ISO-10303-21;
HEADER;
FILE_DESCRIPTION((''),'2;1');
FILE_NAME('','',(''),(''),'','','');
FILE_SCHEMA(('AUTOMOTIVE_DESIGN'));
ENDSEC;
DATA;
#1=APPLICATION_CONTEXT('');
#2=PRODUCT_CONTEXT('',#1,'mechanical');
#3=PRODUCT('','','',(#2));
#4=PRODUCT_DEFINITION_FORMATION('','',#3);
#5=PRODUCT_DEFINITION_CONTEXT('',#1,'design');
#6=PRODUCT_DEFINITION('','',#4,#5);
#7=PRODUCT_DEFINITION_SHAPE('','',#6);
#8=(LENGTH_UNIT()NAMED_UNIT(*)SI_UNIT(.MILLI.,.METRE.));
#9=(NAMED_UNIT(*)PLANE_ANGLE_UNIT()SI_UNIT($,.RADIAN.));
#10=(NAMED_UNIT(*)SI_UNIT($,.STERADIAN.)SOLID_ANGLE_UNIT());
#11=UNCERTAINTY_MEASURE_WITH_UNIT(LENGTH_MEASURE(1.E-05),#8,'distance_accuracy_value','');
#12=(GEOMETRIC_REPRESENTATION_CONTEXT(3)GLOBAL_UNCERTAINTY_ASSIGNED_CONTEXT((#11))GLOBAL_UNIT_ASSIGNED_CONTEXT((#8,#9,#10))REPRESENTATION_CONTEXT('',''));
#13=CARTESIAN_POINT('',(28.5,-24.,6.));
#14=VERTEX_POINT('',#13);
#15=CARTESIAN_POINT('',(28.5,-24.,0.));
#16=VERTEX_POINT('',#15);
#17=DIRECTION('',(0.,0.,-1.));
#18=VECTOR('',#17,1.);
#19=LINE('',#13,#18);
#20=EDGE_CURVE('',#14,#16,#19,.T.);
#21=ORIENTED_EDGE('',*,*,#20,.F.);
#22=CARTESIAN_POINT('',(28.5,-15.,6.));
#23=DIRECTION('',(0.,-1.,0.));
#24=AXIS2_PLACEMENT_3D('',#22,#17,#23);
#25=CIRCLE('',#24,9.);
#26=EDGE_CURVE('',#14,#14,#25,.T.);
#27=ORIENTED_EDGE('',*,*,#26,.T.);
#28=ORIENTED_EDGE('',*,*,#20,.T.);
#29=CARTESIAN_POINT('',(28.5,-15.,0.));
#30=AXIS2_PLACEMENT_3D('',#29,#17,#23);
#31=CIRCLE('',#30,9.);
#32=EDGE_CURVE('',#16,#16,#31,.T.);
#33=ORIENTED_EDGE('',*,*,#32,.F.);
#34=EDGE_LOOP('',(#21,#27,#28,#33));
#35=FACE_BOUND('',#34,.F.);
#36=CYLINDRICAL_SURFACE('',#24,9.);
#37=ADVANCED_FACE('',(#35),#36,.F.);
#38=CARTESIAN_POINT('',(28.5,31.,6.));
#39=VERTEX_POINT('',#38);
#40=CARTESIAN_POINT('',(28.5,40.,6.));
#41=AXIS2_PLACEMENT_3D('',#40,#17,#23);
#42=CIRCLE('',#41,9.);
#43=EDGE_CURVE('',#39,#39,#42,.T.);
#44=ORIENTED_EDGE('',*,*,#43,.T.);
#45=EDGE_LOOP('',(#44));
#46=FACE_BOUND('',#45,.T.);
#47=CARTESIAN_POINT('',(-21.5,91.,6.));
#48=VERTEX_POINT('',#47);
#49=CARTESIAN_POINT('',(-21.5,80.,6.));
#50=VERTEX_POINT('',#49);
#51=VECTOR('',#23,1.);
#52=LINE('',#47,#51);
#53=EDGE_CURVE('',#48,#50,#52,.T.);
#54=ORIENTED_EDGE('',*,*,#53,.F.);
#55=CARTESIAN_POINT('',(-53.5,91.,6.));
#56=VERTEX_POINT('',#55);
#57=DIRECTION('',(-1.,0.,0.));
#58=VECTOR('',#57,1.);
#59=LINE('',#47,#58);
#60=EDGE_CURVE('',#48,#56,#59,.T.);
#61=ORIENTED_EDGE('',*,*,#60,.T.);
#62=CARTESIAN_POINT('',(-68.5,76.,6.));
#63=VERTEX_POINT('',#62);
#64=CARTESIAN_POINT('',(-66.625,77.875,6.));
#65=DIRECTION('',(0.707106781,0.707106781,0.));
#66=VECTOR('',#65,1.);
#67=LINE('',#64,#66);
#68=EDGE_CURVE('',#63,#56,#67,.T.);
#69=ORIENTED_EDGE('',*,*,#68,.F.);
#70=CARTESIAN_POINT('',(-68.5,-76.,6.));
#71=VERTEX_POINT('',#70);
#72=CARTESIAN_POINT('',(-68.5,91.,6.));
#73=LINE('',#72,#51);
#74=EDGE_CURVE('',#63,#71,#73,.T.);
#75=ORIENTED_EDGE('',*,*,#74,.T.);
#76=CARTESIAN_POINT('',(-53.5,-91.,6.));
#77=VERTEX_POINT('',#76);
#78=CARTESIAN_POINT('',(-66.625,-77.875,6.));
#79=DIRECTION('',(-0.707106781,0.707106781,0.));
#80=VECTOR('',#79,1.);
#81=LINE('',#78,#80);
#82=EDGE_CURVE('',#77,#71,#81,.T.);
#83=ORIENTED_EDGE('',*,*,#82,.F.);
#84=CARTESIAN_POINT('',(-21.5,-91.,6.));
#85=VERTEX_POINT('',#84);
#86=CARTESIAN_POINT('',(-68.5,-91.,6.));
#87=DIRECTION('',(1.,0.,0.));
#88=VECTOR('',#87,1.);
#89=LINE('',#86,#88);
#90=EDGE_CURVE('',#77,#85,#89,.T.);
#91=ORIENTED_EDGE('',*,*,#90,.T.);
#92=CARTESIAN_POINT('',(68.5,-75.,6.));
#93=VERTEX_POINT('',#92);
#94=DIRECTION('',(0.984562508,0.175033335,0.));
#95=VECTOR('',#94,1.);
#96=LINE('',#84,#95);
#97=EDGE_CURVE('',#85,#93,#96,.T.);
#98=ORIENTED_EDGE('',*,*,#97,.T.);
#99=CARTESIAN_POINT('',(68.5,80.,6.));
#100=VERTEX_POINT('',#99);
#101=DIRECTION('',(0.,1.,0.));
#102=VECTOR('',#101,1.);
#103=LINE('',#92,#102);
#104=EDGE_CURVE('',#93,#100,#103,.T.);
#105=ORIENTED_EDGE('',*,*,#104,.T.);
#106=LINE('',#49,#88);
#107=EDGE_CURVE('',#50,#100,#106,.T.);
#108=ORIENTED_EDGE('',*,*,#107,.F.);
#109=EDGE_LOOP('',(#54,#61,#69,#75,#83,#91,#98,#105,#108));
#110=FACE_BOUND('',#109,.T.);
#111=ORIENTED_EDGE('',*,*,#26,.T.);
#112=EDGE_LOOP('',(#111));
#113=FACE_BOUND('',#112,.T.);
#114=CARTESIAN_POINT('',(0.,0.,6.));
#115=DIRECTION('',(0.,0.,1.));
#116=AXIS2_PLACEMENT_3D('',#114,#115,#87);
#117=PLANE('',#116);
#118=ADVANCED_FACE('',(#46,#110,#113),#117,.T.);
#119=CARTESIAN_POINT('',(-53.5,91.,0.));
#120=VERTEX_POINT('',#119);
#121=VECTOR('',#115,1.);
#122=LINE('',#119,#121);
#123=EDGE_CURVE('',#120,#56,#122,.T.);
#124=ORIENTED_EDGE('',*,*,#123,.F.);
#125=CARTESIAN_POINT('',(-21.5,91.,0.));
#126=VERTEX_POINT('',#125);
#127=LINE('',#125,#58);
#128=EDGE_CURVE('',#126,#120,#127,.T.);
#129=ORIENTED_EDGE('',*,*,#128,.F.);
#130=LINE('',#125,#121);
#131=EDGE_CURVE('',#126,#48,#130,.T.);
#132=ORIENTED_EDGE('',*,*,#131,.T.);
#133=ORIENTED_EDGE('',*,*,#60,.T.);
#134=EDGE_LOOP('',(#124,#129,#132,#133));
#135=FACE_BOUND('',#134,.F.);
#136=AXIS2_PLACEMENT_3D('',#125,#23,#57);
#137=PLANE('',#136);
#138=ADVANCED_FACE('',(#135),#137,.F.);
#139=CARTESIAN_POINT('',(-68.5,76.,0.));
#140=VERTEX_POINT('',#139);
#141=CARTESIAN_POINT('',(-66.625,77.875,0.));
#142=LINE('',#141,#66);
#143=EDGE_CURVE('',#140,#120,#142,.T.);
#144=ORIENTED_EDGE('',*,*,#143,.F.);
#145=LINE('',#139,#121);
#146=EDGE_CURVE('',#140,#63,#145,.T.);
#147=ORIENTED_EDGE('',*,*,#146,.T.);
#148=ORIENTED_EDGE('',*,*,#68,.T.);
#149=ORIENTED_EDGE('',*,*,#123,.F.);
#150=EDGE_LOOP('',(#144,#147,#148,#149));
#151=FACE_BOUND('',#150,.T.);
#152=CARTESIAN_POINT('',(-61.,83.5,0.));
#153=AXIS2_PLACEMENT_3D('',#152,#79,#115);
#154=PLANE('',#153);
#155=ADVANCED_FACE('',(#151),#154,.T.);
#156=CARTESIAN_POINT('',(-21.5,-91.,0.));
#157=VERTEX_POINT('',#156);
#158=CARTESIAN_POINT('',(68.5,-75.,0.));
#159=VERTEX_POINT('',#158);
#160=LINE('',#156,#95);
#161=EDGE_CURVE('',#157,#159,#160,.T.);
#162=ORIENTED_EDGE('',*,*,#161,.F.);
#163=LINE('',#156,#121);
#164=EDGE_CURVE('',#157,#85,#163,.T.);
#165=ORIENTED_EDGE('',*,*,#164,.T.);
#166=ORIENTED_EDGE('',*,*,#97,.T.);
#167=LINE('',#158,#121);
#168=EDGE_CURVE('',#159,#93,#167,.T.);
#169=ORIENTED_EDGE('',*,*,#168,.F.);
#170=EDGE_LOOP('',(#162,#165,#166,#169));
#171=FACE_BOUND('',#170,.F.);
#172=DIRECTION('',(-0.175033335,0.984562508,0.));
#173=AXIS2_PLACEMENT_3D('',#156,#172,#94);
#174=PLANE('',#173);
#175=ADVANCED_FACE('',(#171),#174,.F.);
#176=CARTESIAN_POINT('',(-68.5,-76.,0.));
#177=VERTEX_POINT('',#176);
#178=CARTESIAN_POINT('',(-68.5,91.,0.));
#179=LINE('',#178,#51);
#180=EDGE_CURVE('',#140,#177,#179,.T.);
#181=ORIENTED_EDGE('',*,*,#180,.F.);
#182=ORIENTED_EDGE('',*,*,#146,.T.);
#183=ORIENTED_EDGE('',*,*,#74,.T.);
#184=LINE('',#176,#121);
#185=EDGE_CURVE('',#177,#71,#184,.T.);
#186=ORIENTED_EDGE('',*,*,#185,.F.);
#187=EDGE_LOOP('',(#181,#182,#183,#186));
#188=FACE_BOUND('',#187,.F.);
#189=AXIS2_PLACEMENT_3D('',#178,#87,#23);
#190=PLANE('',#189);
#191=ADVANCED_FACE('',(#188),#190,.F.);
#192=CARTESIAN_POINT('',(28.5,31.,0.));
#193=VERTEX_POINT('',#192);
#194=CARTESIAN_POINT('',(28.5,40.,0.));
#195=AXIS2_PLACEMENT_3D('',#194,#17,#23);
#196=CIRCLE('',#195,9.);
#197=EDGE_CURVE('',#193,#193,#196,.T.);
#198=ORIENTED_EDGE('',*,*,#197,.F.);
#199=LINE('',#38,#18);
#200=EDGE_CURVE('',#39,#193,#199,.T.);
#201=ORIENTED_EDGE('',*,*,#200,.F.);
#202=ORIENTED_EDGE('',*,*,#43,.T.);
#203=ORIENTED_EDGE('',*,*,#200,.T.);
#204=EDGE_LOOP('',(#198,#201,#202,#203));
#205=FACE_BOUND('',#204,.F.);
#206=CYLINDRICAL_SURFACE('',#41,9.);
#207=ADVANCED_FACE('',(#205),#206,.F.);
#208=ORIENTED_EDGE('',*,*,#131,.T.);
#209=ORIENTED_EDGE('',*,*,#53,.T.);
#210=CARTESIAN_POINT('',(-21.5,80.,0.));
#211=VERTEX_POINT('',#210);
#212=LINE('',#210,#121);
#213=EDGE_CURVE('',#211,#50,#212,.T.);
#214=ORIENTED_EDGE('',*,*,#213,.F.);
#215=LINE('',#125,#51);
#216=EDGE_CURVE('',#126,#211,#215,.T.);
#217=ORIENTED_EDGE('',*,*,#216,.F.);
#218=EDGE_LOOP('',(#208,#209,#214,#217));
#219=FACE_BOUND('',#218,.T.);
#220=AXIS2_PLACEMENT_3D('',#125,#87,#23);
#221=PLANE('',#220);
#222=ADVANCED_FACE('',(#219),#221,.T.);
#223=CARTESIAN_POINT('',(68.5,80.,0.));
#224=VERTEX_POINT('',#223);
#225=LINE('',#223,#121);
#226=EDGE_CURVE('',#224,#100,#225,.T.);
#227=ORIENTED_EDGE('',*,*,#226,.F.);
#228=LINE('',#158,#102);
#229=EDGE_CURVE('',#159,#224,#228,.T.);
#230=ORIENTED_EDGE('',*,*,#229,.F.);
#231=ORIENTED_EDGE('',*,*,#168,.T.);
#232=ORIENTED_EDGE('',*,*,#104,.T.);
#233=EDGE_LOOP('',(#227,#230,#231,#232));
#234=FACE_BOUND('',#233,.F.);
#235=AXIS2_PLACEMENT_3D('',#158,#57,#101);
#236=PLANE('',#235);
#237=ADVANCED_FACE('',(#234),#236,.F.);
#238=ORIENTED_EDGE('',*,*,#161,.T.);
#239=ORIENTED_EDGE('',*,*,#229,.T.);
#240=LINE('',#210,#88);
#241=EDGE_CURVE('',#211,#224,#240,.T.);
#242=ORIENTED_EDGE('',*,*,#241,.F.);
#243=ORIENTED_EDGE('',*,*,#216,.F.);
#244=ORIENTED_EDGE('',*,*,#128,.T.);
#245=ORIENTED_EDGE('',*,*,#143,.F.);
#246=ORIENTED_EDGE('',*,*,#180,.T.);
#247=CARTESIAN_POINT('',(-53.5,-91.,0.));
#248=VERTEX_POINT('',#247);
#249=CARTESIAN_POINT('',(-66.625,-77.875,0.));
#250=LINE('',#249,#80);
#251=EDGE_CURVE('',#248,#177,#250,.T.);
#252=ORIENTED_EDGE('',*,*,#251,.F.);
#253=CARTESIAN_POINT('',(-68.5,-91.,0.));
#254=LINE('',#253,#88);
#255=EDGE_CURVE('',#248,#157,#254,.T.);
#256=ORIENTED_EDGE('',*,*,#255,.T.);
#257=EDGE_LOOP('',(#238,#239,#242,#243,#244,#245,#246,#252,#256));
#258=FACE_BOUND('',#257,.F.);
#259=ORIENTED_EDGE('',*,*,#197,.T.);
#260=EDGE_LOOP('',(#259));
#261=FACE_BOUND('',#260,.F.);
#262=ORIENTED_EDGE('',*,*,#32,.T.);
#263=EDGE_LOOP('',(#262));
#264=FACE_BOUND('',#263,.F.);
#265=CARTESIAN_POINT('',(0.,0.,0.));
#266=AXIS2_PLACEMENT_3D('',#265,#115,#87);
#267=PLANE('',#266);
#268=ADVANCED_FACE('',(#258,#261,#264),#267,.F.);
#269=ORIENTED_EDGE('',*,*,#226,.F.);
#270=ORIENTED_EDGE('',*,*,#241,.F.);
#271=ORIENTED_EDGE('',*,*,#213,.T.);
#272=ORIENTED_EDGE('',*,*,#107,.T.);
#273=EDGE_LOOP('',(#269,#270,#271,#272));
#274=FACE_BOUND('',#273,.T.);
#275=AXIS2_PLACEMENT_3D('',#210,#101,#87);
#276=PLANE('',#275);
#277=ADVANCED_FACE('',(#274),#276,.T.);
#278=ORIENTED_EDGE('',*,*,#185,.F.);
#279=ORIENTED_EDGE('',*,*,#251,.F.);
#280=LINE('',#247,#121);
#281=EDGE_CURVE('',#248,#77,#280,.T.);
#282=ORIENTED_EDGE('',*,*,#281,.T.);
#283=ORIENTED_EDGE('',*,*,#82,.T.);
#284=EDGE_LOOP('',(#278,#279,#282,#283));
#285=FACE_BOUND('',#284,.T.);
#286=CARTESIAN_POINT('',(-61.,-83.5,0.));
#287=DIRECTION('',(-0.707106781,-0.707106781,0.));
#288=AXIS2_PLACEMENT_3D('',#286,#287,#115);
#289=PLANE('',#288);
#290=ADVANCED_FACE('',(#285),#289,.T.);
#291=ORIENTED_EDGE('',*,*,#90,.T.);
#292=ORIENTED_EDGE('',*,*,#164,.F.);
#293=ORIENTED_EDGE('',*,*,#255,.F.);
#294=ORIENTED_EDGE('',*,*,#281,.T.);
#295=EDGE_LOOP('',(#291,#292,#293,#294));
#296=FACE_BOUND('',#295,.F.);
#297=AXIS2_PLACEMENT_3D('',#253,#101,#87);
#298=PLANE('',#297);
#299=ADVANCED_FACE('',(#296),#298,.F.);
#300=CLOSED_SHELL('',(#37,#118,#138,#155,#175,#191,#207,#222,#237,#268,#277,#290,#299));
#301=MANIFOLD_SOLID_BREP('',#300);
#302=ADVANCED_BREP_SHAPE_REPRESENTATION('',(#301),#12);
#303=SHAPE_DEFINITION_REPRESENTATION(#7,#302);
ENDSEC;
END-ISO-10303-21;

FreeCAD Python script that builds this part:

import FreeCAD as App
import Part
import Sketcher

V = App.Vector


def edges_at(feature, points):
    """Names of the edges that pass closest to the given points."""
    edges = feature.Shape.Edges
    near = lambda p: min(range(len(edges)), key=lambda i: edges[i].distToShape(Part.Vertex(*p))[0])
    return sorted({f"Edge{near(p) + 1}" for p in points})

doc = App.newDocument("Part")
body = doc.addObject("PartDesign::Body", "Body")

# Sketch on XY plane
sketch1 = doc.addObject("Sketcher::SketchObject", "Sketch")
body.addObject(sketch1)
sketch1.AttachmentSupport = (doc.XY_Plane, [""])
sketch1.MapMode = "FlatFace"
sketch1.addGeometry([
    Part.LineSegment(V(-21.5, 80, 0), V(-21.5, 91, 0)),  # 0
    Part.LineSegment(V(-21.5, 91, 0), V(-68.5, 91, 0)),  # 1
    Part.LineSegment(V(-68.5, 91, 0), V(-68.5, -91, 0)),  # 2
    Part.LineSegment(V(-68.5, -91, 0), V(-21.5, -91, 0)),  # 3
    Part.LineSegment(V(-21.5, -91, 0), V(68.5, -75, 0)),  # 4
    Part.LineSegment(V(68.5, -75, 0), V(68.5, 80, 0)),  # 5
    Part.LineSegment(V(68.5, 80, 0), V(-21.5, 80, 0)),  # 6
], False)
sketch1.addConstraint([
    Sketcher.Constraint("Coincident", 0, 2, 1, 1),
    Sketcher.Constraint("Coincident", 1, 2, 2, 1),
    Sketcher.Constraint("Coincident", 2, 2, 3, 1),
    Sketcher.Constraint("Coincident", 3, 2, 4, 1),
    Sketcher.Constraint("Coincident", 4, 2, 5, 1),
    Sketcher.Constraint("Coincident", 5, 2, 6, 1),
    Sketcher.Constraint("Coincident", 6, 2, 0, 1),
    Sketcher.Constraint("Vertical", 0),
    Sketcher.Constraint("Horizontal", 1),
    Sketcher.Constraint("Vertical", 2),
    Sketcher.Constraint("Horizontal", 3),
    Sketcher.Constraint("Vertical", 5),
    Sketcher.Constraint("Horizontal", 6),
    Sketcher.Constraint("Symmetric", 0, 2, 3, 2, -1),
    Sketcher.Constraint("DistanceX", 1, 2, 1, 1, 47.0),
    Sketcher.Constraint("DistanceY", 2, 2, 2, 1, 182.0),
    Sketcher.Constraint("DistanceX", 6, 2, 6, 1, 90.0),
    Sketcher.Constraint("DistanceY", 0, 1, 0, 2, 11.0),
    Sketcher.Constraint("DistanceY", 5, 1, 5, 2, 155.0),
    Sketcher.Constraint("DistanceX", 0, 2, -1, 1, 21.5),
])
pad1 = doc.addObject("PartDesign::Pad", "Pad")
body.addObject(pad1)
pad1.Profile = sketch1
pad1.Length = 6
doc.recompute()

chamfer = doc.addObject("PartDesign::Chamfer", "Chamfer")
body.addObject(chamfer)
chamfer.Base = (pad1, edges_at(pad1, [(-68.5, -91, 3), (-68.5, 91, 3)]))
chamfer.Size = 15

# Sketch on XY plane
sketch2 = doc.addObject("Sketcher::SketchObject", "Sketch001")
body.addObject(sketch2)
sketch2.AttachmentSupport = (doc.XY_Plane, [""])
sketch2.MapMode = "FlatFace"
sketch2.AttachmentOffset = App.Placement(V(0, 0, 6), App.Rotation())
sketch2.addGeometry([
    Part.Circle(V(28.5, 40, 0), V(0, 0, 1), 9),
    Part.Circle(V(28.5, -15, 0), V(0, 0, 1), 9),
], False)
sketch2.addConstraint([
    Sketcher.Constraint("Equal", 0, 1),
    Sketcher.Constraint("Vertical", 0, 3, 1, 3),
    Sketcher.Constraint("Diameter", 0, 18.0),
    Sketcher.Constraint("DistanceY", -1, 1, 0, 3, 40.0),
    Sketcher.Constraint("DistanceY", 1, 3, -1, 1, 15.0),
    Sketcher.Constraint("DistanceX", -1, 1, 0, 3, 28.5),
])
doc.recompute()
hole = doc.addObject("PartDesign::Hole", "Hole")
body.addObject(hole)
hole.Profile = sketch2
hole.ThreadType = "None"
hole.Diameter = 18
hole.DepthType = "ThroughAll"

doc.recompute()
